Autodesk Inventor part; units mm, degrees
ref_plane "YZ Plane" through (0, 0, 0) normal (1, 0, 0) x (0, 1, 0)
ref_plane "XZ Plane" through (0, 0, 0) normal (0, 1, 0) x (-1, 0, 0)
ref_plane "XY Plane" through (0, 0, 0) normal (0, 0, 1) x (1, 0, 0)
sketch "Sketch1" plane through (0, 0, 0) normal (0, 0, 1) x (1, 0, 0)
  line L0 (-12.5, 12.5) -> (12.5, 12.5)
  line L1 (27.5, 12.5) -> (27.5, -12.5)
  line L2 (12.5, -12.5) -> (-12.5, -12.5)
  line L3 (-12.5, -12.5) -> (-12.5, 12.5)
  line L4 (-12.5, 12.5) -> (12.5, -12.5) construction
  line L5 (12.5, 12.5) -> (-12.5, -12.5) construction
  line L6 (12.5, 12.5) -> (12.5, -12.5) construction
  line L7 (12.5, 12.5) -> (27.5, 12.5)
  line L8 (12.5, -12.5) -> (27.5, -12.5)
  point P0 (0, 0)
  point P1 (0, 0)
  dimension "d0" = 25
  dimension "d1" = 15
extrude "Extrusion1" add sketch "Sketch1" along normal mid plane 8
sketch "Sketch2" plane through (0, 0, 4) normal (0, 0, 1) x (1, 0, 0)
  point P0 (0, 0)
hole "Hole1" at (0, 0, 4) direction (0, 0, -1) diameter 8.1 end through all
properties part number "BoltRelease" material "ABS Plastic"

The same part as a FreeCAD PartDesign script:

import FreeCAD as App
import Part
import Sketcher
from FreeCAD import Vector


def add_polygon(sketch, points):
    """Adds a closed chain of lines whose ends are joined by coincident constraints."""
    first, n = sketch.GeometryCount, len(points)
    for a, b in zip(points, points[1:] + points[:1]):
        sketch.addGeometry(Part.LineSegment(App.Vector(*a, 0), App.Vector(*b, 0)), False)
    for i in range(n):
        sketch.addConstraint(Sketcher.Constraint("Coincident", first + i, 2, first + (i + 1) % n, 1))

doc = App.newDocument("Part")
body = doc.addObject("PartDesign::Body", "Body")

# Sketch on XY plane
sketch1 = body.newObject("Sketcher::SketchObject", "Sketch")
sketch1.AttachmentSupport = (doc.getObject("XY_Plane"), [""])
sketch1.MapMode = "FlatFace"
add_polygon(sketch1, [(27.5, 12.5), (-12.5, 12.5), (-12.5, -12.5), (27.5, -12.5)])  # lines 0-3
sketch1.addConstraint(Sketcher.Constraint("Horizontal", 0))
sketch1.addConstraint(Sketcher.Constraint("Vertical", 1))
sketch1.addConstraint(Sketcher.Constraint("Horizontal", 2))
sketch1.addConstraint(Sketcher.Constraint("Vertical", 3))
sketch1.addConstraint(Sketcher.Constraint("DistanceY", 1, 2, 1, 1, 25.0))
sketch1.addConstraint(Sketcher.Constraint("DistanceX", 0, 2, 0, 1, 40.0))
sketch1.addConstraint(Sketcher.Constraint("DistanceX", 0, 2, -1, 1, 12.5))
sketch1.addConstraint(Sketcher.Constraint("DistanceY", -1, 1, 0, 2, 12.5))
pad1 = body.newObject("PartDesign::Pad", "Pad")
pad1.Profile = sketch1
pad1.Length = 8
pad1.Midplane = True

# Sketch on XY plane
sketch2 = body.newObject("Sketcher::SketchObject", "Sketch001")
sketch2.AttachmentSupport = (doc.getObject("XY_Plane"), [""])
sketch2.MapMode = "FlatFace"
sketch2.AttachmentOffset = App.Placement(Vector(0, 0, 4), App.Rotation())
sketch2.addGeometry(Part.Circle(Vector(0, 0, 0), Vector(0, 0, 1), 4.05), False)
sketch2.addConstraint(Sketcher.Constraint("Coincident", 0, 3, -1, 1))
sketch2.addConstraint(Sketcher.Constraint("Diameter", 0, 8.1))
doc.recompute()
hole = body.newObject("PartDesign::Hole", "Hole")
hole.Profile = sketch2
hole.ThreadType = "None"
hole.Diameter = 8.1
hole.DepthType = "ThroughAll"

doc.recompute()
